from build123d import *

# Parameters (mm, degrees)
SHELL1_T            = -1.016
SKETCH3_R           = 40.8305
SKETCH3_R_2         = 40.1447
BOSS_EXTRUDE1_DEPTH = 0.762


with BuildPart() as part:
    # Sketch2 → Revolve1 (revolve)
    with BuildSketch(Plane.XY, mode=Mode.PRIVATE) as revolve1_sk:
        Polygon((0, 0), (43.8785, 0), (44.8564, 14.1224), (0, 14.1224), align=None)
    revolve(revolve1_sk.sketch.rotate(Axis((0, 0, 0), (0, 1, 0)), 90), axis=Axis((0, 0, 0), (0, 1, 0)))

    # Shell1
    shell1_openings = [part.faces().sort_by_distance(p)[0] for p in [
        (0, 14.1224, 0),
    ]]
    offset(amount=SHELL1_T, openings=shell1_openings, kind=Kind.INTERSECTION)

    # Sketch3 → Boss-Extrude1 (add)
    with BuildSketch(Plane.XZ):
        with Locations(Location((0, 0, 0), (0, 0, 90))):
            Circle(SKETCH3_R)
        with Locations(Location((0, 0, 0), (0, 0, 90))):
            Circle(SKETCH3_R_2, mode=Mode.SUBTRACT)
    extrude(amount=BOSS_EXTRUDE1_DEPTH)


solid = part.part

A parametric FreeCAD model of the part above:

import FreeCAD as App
import Part
import Sketcher
Q = App.Units.Quantity


def faces_at(feature, points):
    """Names of the faces that lie closest to the given points."""
    faces = feature.Shape.Faces
    near = lambda p: min(range(len(faces)), key=lambda i: faces[i].distToShape(Part.Vertex(*p))[0])
    return sorted({f"Face{near(p) + 1}" for p in points})

doc = App.newDocument("Part")
body = doc.addObject("PartDesign::Body", "Body")

sketch1 = body.newObject("Sketcher::SketchObject", "Sketch")
sketch1.AttachmentSupport = (doc.getObject("XY_Plane"), [""])
sketch1.MapMode = "FlatFace"
sketch1.addGeometry([
    Part.LineSegment(App.Vector(0, 0, 0), App.Vector(44, 0, 0)),
    Part.LineSegment(App.Vector(44, 0, 0), App.Vector(45, 14, 0)),
    Part.LineSegment(App.Vector(45, 14, 0), App.Vector(0, 14, 0)),
    Part.LineSegment(App.Vector(0, 14, 0), App.Vector(0, 0, 0)),
], False)
sketch1.addConstraint([
    Sketcher.Constraint("Coincident", 0, 2, 1, 1),
    Sketcher.Constraint("Coincident", 1, 2, 2, 1),
    Sketcher.Constraint("Coincident", 2, 2, 3, 1),
    Sketcher.Constraint("Coincident", 3, 2, 0, 1),
    Sketcher.Constraint("Horizontal", 0),
    Sketcher.Constraint("Horizontal", 2),
    Sketcher.Constraint("Vertical", 3),
    Sketcher.Constraint("Coincident", 3, 2, -1, 1),
    Sketcher.Constraint("DistanceX", 2, 2, 2, 1, Q("1.766 in")),
    Sketcher.Constraint("DistanceY", 3, 2, 3, 1, Q("0.556 in")),
    Sketcher.Constraint("DistanceX", 0, 1, 0, 2, Q("1.7275 in")),
])
revolution = body.newObject("PartDesign::Revolution", "Revolution")
revolution.Profile = sketch1
revolution.ReferenceAxis = (sketch1, ["V_Axis"])
revolution.Angle = 360
doc.recompute()

thickness = body.newObject("PartDesign::Thickness", "Thickness")
thickness.Base = (revolution, faces_at(revolution, [(0, 14.122, 0)]))
thickness.Value = Q("0.04 in")
thickness.Reversed = True
thickness.Join = "Intersection"

sketch2 = body.newObject("Sketcher::SketchObject", "Sketch001")
sketch2.AttachmentSupport = (doc.getObject("XZ_Plane"), [""])
sketch2.MapMode = "FlatFace"
sketch2.addGeometry([
    Part.Circle(App.Vector(0, 0, 0), App.Vector(0, 0, 1), 41),
    Part.Circle(App.Vector(0, 0, 0), App.Vector(0, 0, 1), 40),
], False)
sketch2.addConstraint([
    Sketcher.Constraint("Coincident", 0, 3, -1, 1),
    Sketcher.Constraint("Coincident", 1, 3, -1, 1),
    Sketcher.Constraint("Diameter", 0, Q("3.215 in")),
    Sketcher.Constraint("Diameter", 1, Q("3.161 in")),
])
pad1 = body.newObject("PartDesign::Pad", "Pad")
pad1.Profile = sketch2
pad1.Length = Q("0.03 in")

doc.recompute()
